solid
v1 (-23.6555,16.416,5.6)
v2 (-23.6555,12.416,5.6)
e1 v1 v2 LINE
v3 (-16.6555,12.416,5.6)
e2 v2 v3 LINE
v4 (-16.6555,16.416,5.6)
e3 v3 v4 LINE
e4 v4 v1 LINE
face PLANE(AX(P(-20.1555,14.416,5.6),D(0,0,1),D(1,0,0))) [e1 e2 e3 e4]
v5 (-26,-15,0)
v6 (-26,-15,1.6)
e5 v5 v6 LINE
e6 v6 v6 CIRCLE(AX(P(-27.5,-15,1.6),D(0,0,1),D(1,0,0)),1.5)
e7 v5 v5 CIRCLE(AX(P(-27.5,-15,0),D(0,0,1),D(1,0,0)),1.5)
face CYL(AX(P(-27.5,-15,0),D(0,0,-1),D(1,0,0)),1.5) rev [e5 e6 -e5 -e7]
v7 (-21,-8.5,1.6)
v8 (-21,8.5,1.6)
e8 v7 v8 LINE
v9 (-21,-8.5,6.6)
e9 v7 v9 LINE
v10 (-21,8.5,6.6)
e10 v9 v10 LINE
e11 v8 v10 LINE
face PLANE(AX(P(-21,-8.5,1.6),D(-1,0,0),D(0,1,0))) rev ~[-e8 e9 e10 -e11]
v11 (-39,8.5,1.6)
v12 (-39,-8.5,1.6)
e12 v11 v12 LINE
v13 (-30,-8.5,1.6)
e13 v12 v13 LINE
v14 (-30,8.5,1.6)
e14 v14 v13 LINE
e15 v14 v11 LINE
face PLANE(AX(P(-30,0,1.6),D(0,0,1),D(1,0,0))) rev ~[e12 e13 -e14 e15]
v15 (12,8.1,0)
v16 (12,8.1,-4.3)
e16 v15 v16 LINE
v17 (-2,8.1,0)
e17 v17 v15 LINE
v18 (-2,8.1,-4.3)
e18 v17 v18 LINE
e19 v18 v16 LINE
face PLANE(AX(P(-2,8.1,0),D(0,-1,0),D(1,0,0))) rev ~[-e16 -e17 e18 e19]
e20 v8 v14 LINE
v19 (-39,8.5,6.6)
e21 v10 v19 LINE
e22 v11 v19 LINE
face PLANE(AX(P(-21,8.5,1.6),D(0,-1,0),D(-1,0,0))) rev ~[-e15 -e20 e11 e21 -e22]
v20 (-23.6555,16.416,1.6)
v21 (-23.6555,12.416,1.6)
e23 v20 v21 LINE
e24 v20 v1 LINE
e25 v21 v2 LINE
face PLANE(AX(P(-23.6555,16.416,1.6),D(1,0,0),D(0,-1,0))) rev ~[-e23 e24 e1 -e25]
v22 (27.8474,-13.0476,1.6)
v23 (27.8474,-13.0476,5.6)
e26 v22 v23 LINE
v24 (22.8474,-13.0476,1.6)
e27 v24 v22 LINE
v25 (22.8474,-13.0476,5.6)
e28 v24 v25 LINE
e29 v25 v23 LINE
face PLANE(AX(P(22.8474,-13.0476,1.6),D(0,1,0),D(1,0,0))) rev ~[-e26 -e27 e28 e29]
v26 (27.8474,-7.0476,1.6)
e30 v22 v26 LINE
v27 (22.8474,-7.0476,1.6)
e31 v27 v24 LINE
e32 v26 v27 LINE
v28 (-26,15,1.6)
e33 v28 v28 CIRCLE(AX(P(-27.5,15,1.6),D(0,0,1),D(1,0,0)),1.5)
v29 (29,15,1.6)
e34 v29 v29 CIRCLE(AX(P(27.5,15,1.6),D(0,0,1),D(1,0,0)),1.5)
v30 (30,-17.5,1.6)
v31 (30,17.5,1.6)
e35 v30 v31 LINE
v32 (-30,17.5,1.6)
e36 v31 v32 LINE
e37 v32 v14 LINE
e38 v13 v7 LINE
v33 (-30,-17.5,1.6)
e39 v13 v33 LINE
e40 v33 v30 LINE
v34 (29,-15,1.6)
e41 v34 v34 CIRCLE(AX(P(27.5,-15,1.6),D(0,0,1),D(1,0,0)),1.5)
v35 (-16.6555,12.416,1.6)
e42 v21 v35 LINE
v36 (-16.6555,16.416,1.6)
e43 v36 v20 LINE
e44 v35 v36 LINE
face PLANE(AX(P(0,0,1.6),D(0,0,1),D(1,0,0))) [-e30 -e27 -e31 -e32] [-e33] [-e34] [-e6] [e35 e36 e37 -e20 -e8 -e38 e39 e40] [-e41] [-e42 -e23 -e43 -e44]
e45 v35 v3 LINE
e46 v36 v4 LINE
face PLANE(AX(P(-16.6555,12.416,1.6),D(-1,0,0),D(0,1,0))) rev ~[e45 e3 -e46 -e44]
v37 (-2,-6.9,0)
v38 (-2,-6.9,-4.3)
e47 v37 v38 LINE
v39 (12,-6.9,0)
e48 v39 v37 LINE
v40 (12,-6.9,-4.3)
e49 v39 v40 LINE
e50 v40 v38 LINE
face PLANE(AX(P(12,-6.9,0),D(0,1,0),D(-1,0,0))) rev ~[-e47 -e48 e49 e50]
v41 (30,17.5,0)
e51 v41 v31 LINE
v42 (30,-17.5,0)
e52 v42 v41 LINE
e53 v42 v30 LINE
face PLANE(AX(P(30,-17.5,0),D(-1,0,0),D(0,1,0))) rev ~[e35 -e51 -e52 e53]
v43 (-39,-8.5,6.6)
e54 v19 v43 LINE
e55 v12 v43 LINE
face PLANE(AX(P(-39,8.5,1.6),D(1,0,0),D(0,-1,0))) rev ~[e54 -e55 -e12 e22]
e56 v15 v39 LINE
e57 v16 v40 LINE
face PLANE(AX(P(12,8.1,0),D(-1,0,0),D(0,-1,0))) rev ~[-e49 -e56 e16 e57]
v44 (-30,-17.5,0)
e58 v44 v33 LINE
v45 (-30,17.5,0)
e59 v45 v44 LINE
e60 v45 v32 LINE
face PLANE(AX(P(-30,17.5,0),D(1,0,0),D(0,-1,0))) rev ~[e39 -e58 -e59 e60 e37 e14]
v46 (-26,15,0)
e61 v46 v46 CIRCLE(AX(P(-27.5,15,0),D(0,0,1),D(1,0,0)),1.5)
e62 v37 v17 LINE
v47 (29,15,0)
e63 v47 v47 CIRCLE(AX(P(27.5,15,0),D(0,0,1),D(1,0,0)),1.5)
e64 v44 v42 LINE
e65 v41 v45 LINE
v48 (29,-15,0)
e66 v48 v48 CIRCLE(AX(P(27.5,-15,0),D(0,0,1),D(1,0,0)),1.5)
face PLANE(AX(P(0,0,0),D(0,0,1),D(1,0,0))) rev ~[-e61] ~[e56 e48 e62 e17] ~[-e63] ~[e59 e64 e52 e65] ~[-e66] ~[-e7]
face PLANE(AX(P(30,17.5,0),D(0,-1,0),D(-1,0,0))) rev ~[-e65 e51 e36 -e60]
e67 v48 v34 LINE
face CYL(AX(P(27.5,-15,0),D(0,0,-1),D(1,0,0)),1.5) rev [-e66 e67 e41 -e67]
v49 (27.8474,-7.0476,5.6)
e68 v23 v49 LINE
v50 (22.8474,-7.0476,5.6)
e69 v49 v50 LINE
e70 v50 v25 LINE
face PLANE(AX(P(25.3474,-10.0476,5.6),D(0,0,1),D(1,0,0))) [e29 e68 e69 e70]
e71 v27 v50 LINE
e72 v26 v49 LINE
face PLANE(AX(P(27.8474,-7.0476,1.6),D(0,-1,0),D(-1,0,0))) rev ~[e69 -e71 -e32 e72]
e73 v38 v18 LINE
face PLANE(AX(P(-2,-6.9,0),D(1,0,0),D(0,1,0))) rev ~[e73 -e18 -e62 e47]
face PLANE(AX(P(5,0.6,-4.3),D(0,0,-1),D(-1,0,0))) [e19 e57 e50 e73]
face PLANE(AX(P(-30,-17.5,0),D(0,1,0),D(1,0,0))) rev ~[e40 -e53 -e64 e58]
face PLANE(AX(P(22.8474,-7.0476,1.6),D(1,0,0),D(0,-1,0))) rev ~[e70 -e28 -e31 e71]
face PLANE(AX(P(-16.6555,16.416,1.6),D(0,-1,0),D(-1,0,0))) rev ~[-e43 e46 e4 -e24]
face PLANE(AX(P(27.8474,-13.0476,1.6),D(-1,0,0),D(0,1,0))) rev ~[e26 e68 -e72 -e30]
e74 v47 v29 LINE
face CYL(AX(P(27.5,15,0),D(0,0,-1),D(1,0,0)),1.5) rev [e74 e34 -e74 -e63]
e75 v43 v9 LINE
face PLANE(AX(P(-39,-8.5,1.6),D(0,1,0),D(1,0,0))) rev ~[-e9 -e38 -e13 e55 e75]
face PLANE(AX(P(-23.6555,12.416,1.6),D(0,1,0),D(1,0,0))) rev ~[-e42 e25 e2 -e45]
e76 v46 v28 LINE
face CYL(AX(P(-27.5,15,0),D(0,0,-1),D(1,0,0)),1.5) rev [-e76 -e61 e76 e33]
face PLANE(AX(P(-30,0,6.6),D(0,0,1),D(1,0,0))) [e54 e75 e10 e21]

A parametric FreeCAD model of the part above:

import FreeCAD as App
import Part
import Sketcher
from FreeCAD import Vector
Q = App.Units.Quantity


def add_polygon(sketch, points):
    """Adds a closed chain of lines whose ends are joined by coincident constraints."""
    first, n = sketch.GeometryCount, len(points)
    for a, b in zip(points, points[1:] + points[:1]):
        sketch.addGeometry(Part.LineSegment(App.Vector(*a, 0), App.Vector(*b, 0)), False)
    for i in range(n):
        sketch.addConstraint(Sketcher.Constraint("Coincident", first + i, 2, first + (i + 1) % n, 1))

doc = App.newDocument("Part")
body = doc.addObject("PartDesign::Body", "Body")

sketch1 = body.newObject("Sketcher::SketchObject", "Sketch")
sketch1.AttachmentSupport = (doc.getObject("XY_Plane"), [""])
sketch1.MapMode = "FlatFace"
add_polygon(sketch1, [(-30, 17.5), (-30, -17.5), (30, -17.5), (30, 17.5)])
sketch1.addGeometry(Part.Circle(Vector(-27.5, -15, 0), Vector(0, 0, 1), 1.5), False)
sketch1.addGeometry(Part.Circle(Vector(27.5, -15, 0), Vector(0, 0, 1), 1.5), False)
sketch1.addGeometry(Part.Circle(Vector(-27.5, 15, 0), Vector(0, 0, 1), 1.5), False)
sketch1.addGeometry(Part.Circle(Vector(27.5, 15, 0), Vector(0, 0, 1), 1.5), False)
sketch1.addConstraint([
    Sketcher.Constraint("Vertical", 0),
    Sketcher.Constraint("Horizontal", 1),
    Sketcher.Constraint("Vertical", 2),
    Sketcher.Constraint("Horizontal", 3),
    Sketcher.Constraint("Equal", 4, 5),
    Sketcher.Constraint("Equal", 5, 6),
    Sketcher.Constraint("Equal", 6, 7),
    Sketcher.Constraint("Symmetric", 5, 3, 6, 3, -1, 1),
    Sketcher.Constraint("Symmetric", 4, 3, 7, 3, -1, 1),
    Sketcher.Constraint("Symmetric", 0, 2, 2, 2, -1, 1),
    Sketcher.Constraint("Symmetric", 4, 3, 5, 3, -2),
    Sketcher.Constraint("Diameter", 4, Q("3 mm")),
    Sketcher.Constraint("DistanceX", 1, 1, 1, 2, Q("60 mm")),
    Sketcher.Constraint("DistanceY", 0, 2, 0, 1, Q("35 mm")),
    Sketcher.Constraint("DistanceY", 4, 3, -1, 1, Q("15 mm")),
    Sketcher.Constraint("DistanceX", 4, 3, 5, 3, Q("55 mm")),
])
pad1 = body.newObject("PartDesign::Pad", "Pad")
pad1.Profile = sketch1
pad1.Length = 1.6

sketch2 = body.newObject("Sketcher::SketchObject", "Sketch001")
sketch2.AttachmentSupport = (doc.getObject("XY_Plane"), [""])
sketch2.MapMode = "FlatFace"
sketch2.AttachmentOffset = App.Placement(Vector(0, 0, 1.6), App.Rotation())
add_polygon(sketch2, [(-21, 8), (-39, 8), (-39, -8), (-21, -8)])
sketch2.addConstraint([
    Sketcher.Constraint("Horizontal", 0),
    Sketcher.Constraint("Vertical", 1),
    Sketcher.Constraint("Horizontal", 2),
    Sketcher.Constraint("Vertical", 3),
    Sketcher.Constraint("DistanceX", 0, 2, 0, 1, Q("18 mm")),
    Sketcher.Constraint("DistanceY", 1, 2, 1, 1, Q("17 mm")),
    Sketcher.Constraint("DistanceX", 0, 2, -1, 1, Q("39 mm")),
    Sketcher.Constraint("DistanceY", -1, 1, 0, 2, Q("8.5 mm")),
])
pad2 = body.newObject("PartDesign::Pad", "Pad001")
pad2.Profile = sketch2
pad2.Length = 5

sketch3 = body.newObject("Sketcher::SketchObject", "Sketch002")
sketch3.AttachmentSupport = (doc.getObject("XY_Plane"), [""])
sketch3.MapMode = "FlatFace"
sketch3.AttachmentOffset = App.Placement(Vector(0, 0, 1.6), App.Rotation())
add_polygon(sketch3, [(-23.7, 16.4), (-23.7, 12.4), (-16.7, 12.4), (-16.7, 16.4)])
add_polygon(sketch3, [(22.8, -13), (27.8, -13), (27.8, -7), (22.8, -7)])
sketch3.addConstraint([
    Sketcher.Constraint("Vertical", 0),
    Sketcher.Constraint("Horizontal", 1),
    Sketcher.Constraint("Vertical", 2),
    Sketcher.Constraint("Horizontal", 3),
    Sketcher.Constraint("Horizontal", 4),
    Sketcher.Constraint("Vertical", 5),
    Sketcher.Constraint("Horizontal", 6),
    Sketcher.Constraint("Vertical", 7),
    Sketcher.Constraint("DistanceX", 1, 1, 1, 2, Q("7 mm")),
    Sketcher.Constraint("DistanceX", 4, 1, 4, 2, Q("5 mm")),
    Sketcher.Constraint("DistanceY", 0, 2, 0, 1, Q("4 mm")),
    Sketcher.Constraint("DistanceY", 5, 1, 5, 2, Q("6 mm")),
    Sketcher.Constraint("DistanceY", -1, 1, 0, 2, Q("12.416 mm")),
    Sketcher.Constraint("DistanceX", 1, 2, 4, 2, Q("44.503 mm")),
    Sketcher.Constraint("DistanceX", 0, 2, -1, 1, Q("23.6555 mm")),
    Sketcher.Constraint("DistanceY", 4, 2, -1, 1, Q("13.0476 mm")),
])
pad3 = body.newObject("PartDesign::Pad", "Pad002")
pad3.Profile = sketch3
pad3.Length = 4

sketch4 = body.newObject("Sketcher::SketchObject", "Sketch003")
sketch4.AttachmentSupport = (doc.getObject("XY_Plane"), [""])
sketch4.MapMode = "FlatFace"
add_polygon(sketch4, [(12, 8), (12, -7), (-2, -7), (-2, 8)])
sketch4.addConstraint([
    Sketcher.Constraint("Vertical", 0),
    Sketcher.Constraint("Horizontal", 1),
    Sketcher.Constraint("Vertical", 2),
    Sketcher.Constraint("Horizontal", 3),
    Sketcher.Constraint("DistanceX", 1, 2, 1, 1, Q("14 mm")),
    Sketcher.Constraint("DistanceY", 0, 2, 0, 1, Q("15 mm")),
    Sketcher.Constraint("DistanceX", -1, 1, 0, 2, Q("12 mm")),
    Sketcher.Constraint("DistanceY", 0, 2, -1, 1, Q("6.9 mm")),
])
pad4 = body.newObject("PartDesign::Pad", "Pad003")
pad4.Profile = sketch4
pad4.Length = 4.3
pad4.Reversed = True

doc.recompute()
